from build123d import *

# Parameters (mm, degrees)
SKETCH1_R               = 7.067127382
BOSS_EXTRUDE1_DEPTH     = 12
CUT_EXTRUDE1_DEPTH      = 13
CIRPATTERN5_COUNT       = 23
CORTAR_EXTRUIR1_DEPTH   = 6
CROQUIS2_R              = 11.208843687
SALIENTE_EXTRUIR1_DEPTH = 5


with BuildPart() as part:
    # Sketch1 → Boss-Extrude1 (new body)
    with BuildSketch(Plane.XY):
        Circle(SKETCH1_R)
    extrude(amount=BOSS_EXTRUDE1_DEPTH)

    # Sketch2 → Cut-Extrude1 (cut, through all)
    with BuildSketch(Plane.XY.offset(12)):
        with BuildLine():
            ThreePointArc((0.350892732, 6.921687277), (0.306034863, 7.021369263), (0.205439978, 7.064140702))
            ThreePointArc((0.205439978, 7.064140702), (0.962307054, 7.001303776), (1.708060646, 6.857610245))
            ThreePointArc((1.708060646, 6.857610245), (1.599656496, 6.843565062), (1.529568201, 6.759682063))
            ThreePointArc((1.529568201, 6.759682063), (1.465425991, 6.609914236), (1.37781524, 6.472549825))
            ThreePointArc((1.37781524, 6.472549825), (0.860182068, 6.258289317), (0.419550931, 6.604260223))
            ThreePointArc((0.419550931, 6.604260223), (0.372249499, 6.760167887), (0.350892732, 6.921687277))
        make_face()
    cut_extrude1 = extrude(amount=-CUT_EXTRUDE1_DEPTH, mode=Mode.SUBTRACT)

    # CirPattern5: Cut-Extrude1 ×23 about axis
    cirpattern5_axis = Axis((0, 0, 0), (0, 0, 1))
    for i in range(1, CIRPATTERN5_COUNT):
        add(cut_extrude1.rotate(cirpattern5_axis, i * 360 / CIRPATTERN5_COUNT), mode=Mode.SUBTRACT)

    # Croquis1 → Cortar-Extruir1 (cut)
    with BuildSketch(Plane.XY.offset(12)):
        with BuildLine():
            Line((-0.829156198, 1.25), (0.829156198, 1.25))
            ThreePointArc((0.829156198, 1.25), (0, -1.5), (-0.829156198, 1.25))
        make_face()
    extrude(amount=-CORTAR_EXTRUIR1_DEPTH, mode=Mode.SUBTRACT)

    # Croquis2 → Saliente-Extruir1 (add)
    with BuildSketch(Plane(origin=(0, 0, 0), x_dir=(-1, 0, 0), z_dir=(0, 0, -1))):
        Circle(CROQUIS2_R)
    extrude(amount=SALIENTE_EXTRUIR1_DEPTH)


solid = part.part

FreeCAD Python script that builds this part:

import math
import FreeCAD as App
import Part
import Sketcher
from FreeCAD import Vector
Q = App.Units.Quantity

doc = App.newDocument("Part")
body = doc.addObject("PartDesign::Body", "Body")

# Sketch on XY plane
sketch1 = body.newObject("Sketcher::SketchObject", "Sketch")
sketch1.AttachmentSupport = (doc.getObject("XY_Plane"), [""])
sketch1.MapMode = "FlatFace"
sketch1.addGeometry(Part.Circle(Vector(0, 0, 0), Vector(0, 0, 1), 7), False)
sketch1.addConstraint([
    Sketcher.Constraint("Coincident", 0, 3, -1, 1),
    Sketcher.Constraint("Diameter", 0, Q("14.134255 mm")),
])
pad1 = body.newObject("PartDesign::Pad", "Pad")
pad1.Profile = sketch1
pad1.Length = 12

# Sketch on XY plane
sketch2 = body.newObject("Sketcher::SketchObject", "Sketch001")
sketch2.AttachmentSupport = (doc.getObject("XY_Plane"), [""])
sketch2.MapMode = "FlatFace"
sketch2.AttachmentOffset = App.Placement(Vector(0, 0, 12), App.Rotation())
sketch2.addGeometry([
    Part.ArcOfCircle(Part.Circle(Vector(0.2, 6.91, 0), Vector(0, 0, 1), 0.15), math.radians(3), math.radians(88)),  # 0
    Part.ArcOfCircle(Part.Circle(Vector(1.35, 6.97, 0), Vector(0, 0, 1), 1), math.radians(-177.14), math.radians(-158.45)),  # 1
    Part.ArcOfCircle(Part.Circle(Vector(0.94, 6.81, 0), Vector(0, 0, 1), 0.56), math.radians(-158), math.radians(-37)),  # 2
    Part.ArcOfCircle(Part.Circle(Vector(0.58, 7.08, 0), Vector(0, 0, 1), 1), math.radians(-37.2), math.radians(-18.51)),  # 3
    Part.ArcOfCircle(Part.Circle(Vector(1.67, 6.71, 0), Vector(0, 0, 1), 0.15), math.radians(76), math.radians(161)),  # 4
    Part.ArcOfCircle(Part.Circle(Vector(0, 0, 0), Vector(0, 0, 1), 7.07), math.radians(76.01), math.radians(88.33)),  # 5
], False)
sketch2.addConstraint([
    Sketcher.Constraint("Tangent", 0, 1, 1, 1),
    Sketcher.Constraint("Tangent", 1, 2, 2, 1),
    Sketcher.Constraint("Tangent", 2, 2, 3, 1),
    Sketcher.Constraint("Tangent", 3, 2, 4, 2),
    Sketcher.Constraint("Tangent", 4, 1, 5, 1),
    Sketcher.Constraint("Tangent", 5, 2, 0, 2),
    Sketcher.Constraint("Coincident", 5, 3, -1, 1),
    Sketcher.Constraint("Equal", 1, 3),
    Sketcher.Constraint("Equal", 0, 4),
    Sketcher.Constraint("Radius", 1, Q("1 mm")),
    Sketcher.Constraint("Radius", 0, Q("0.15 mm")),
    Sketcher.Constraint("Radius", 2, Q("0.555 mm")),
    Sketcher.Constraint("Radius", 5, Q("7.067128 mm")),
    Sketcher.Constraint("DistanceY", 3, 2, 3, 3, Q("0.317499 mm")),
    Sketcher.Constraint("DistanceX", -1, 1, 0, 3, Q("0.20108 mm")),
    Sketcher.Constraint("DistanceY", -1, 1, 2, 3, Q("6.80812 mm")),
    Sketcher.Constraint("DistanceX", -1, 1, 3, 3, Q("0.58131 mm")),
])
pocket1 = body.newObject("PartDesign::Pocket", "Pocket")
pocket1.Profile = sketch2
pocket1.Type = "ThroughAll"
doc.recompute()

polarpattern = body.newObject("PartDesign::PolarPattern", "PolarPattern")
polarpattern.Originals = [pocket1]
polarpattern.Axis = (doc.getObject("Z_Axis"), [""])
polarpattern.Angle = 360
polarpattern.Occurrences = 23
body.Tip = polarpattern

# Sketch on XY plane
sketch3 = body.newObject("Sketcher::SketchObject", "Sketch002")
sketch3.AttachmentSupport = (doc.getObject("XY_Plane"), [""])
sketch3.MapMode = "FlatFace"
sketch3.AttachmentOffset = App.Placement(Vector(0, 0, 12), App.Rotation())
sketch3.addGeometry([
    Part.LineSegment(Vector(0.8, 1.2, 0), Vector(-0.8, 1.2, 0)),
    Part.ArcOfCircle(Part.Circle(Vector(0, 0, 0), Vector(0, 0, 1), 1.5), math.radians(124), math.radians(416)),
], False)
sketch3.addConstraint([
    Sketcher.Constraint("Coincident", 0, 1, 1, 2),
    Sketcher.Constraint("Coincident", 1, 1, 0, 2),
    Sketcher.Constraint("Horizontal", 0),
    Sketcher.Constraint("Coincident", 1, 3, -1, 1),
    Sketcher.Constraint("Radius", 1, Q("1.5 mm")),
    Sketcher.Constraint("DistanceY", -1, 1, 0, 1, Q("1.25 mm")),
])
pocket2 = body.newObject("PartDesign::Pocket", "Pocket001")
pocket2.Profile = sketch3
pocket2.Length = 6

# Sketch on XY plane
sketch4 = body.newObject("Sketcher::SketchObject", "Sketch003")
sketch4.AttachmentSupport = (doc.getObject("XY_Plane"), [""])
sketch4.MapMode = "FlatFace"
sketch4.addGeometry(Part.Circle(Vector(0, 0, 0), Vector(0, 0, 1), 11), False)
sketch4.addConstraint([
    Sketcher.Constraint("Coincident", 0, 3, -1, 1),
    Sketcher.Constraint("Diameter", 0, Q("22.417687 mm")),
])
pad2 = body.newObject("PartDesign::Pad", "Pad001")
pad2.Profile = sketch4
pad2.Length = 5
pad2.Reversed = True

doc.recompute()
